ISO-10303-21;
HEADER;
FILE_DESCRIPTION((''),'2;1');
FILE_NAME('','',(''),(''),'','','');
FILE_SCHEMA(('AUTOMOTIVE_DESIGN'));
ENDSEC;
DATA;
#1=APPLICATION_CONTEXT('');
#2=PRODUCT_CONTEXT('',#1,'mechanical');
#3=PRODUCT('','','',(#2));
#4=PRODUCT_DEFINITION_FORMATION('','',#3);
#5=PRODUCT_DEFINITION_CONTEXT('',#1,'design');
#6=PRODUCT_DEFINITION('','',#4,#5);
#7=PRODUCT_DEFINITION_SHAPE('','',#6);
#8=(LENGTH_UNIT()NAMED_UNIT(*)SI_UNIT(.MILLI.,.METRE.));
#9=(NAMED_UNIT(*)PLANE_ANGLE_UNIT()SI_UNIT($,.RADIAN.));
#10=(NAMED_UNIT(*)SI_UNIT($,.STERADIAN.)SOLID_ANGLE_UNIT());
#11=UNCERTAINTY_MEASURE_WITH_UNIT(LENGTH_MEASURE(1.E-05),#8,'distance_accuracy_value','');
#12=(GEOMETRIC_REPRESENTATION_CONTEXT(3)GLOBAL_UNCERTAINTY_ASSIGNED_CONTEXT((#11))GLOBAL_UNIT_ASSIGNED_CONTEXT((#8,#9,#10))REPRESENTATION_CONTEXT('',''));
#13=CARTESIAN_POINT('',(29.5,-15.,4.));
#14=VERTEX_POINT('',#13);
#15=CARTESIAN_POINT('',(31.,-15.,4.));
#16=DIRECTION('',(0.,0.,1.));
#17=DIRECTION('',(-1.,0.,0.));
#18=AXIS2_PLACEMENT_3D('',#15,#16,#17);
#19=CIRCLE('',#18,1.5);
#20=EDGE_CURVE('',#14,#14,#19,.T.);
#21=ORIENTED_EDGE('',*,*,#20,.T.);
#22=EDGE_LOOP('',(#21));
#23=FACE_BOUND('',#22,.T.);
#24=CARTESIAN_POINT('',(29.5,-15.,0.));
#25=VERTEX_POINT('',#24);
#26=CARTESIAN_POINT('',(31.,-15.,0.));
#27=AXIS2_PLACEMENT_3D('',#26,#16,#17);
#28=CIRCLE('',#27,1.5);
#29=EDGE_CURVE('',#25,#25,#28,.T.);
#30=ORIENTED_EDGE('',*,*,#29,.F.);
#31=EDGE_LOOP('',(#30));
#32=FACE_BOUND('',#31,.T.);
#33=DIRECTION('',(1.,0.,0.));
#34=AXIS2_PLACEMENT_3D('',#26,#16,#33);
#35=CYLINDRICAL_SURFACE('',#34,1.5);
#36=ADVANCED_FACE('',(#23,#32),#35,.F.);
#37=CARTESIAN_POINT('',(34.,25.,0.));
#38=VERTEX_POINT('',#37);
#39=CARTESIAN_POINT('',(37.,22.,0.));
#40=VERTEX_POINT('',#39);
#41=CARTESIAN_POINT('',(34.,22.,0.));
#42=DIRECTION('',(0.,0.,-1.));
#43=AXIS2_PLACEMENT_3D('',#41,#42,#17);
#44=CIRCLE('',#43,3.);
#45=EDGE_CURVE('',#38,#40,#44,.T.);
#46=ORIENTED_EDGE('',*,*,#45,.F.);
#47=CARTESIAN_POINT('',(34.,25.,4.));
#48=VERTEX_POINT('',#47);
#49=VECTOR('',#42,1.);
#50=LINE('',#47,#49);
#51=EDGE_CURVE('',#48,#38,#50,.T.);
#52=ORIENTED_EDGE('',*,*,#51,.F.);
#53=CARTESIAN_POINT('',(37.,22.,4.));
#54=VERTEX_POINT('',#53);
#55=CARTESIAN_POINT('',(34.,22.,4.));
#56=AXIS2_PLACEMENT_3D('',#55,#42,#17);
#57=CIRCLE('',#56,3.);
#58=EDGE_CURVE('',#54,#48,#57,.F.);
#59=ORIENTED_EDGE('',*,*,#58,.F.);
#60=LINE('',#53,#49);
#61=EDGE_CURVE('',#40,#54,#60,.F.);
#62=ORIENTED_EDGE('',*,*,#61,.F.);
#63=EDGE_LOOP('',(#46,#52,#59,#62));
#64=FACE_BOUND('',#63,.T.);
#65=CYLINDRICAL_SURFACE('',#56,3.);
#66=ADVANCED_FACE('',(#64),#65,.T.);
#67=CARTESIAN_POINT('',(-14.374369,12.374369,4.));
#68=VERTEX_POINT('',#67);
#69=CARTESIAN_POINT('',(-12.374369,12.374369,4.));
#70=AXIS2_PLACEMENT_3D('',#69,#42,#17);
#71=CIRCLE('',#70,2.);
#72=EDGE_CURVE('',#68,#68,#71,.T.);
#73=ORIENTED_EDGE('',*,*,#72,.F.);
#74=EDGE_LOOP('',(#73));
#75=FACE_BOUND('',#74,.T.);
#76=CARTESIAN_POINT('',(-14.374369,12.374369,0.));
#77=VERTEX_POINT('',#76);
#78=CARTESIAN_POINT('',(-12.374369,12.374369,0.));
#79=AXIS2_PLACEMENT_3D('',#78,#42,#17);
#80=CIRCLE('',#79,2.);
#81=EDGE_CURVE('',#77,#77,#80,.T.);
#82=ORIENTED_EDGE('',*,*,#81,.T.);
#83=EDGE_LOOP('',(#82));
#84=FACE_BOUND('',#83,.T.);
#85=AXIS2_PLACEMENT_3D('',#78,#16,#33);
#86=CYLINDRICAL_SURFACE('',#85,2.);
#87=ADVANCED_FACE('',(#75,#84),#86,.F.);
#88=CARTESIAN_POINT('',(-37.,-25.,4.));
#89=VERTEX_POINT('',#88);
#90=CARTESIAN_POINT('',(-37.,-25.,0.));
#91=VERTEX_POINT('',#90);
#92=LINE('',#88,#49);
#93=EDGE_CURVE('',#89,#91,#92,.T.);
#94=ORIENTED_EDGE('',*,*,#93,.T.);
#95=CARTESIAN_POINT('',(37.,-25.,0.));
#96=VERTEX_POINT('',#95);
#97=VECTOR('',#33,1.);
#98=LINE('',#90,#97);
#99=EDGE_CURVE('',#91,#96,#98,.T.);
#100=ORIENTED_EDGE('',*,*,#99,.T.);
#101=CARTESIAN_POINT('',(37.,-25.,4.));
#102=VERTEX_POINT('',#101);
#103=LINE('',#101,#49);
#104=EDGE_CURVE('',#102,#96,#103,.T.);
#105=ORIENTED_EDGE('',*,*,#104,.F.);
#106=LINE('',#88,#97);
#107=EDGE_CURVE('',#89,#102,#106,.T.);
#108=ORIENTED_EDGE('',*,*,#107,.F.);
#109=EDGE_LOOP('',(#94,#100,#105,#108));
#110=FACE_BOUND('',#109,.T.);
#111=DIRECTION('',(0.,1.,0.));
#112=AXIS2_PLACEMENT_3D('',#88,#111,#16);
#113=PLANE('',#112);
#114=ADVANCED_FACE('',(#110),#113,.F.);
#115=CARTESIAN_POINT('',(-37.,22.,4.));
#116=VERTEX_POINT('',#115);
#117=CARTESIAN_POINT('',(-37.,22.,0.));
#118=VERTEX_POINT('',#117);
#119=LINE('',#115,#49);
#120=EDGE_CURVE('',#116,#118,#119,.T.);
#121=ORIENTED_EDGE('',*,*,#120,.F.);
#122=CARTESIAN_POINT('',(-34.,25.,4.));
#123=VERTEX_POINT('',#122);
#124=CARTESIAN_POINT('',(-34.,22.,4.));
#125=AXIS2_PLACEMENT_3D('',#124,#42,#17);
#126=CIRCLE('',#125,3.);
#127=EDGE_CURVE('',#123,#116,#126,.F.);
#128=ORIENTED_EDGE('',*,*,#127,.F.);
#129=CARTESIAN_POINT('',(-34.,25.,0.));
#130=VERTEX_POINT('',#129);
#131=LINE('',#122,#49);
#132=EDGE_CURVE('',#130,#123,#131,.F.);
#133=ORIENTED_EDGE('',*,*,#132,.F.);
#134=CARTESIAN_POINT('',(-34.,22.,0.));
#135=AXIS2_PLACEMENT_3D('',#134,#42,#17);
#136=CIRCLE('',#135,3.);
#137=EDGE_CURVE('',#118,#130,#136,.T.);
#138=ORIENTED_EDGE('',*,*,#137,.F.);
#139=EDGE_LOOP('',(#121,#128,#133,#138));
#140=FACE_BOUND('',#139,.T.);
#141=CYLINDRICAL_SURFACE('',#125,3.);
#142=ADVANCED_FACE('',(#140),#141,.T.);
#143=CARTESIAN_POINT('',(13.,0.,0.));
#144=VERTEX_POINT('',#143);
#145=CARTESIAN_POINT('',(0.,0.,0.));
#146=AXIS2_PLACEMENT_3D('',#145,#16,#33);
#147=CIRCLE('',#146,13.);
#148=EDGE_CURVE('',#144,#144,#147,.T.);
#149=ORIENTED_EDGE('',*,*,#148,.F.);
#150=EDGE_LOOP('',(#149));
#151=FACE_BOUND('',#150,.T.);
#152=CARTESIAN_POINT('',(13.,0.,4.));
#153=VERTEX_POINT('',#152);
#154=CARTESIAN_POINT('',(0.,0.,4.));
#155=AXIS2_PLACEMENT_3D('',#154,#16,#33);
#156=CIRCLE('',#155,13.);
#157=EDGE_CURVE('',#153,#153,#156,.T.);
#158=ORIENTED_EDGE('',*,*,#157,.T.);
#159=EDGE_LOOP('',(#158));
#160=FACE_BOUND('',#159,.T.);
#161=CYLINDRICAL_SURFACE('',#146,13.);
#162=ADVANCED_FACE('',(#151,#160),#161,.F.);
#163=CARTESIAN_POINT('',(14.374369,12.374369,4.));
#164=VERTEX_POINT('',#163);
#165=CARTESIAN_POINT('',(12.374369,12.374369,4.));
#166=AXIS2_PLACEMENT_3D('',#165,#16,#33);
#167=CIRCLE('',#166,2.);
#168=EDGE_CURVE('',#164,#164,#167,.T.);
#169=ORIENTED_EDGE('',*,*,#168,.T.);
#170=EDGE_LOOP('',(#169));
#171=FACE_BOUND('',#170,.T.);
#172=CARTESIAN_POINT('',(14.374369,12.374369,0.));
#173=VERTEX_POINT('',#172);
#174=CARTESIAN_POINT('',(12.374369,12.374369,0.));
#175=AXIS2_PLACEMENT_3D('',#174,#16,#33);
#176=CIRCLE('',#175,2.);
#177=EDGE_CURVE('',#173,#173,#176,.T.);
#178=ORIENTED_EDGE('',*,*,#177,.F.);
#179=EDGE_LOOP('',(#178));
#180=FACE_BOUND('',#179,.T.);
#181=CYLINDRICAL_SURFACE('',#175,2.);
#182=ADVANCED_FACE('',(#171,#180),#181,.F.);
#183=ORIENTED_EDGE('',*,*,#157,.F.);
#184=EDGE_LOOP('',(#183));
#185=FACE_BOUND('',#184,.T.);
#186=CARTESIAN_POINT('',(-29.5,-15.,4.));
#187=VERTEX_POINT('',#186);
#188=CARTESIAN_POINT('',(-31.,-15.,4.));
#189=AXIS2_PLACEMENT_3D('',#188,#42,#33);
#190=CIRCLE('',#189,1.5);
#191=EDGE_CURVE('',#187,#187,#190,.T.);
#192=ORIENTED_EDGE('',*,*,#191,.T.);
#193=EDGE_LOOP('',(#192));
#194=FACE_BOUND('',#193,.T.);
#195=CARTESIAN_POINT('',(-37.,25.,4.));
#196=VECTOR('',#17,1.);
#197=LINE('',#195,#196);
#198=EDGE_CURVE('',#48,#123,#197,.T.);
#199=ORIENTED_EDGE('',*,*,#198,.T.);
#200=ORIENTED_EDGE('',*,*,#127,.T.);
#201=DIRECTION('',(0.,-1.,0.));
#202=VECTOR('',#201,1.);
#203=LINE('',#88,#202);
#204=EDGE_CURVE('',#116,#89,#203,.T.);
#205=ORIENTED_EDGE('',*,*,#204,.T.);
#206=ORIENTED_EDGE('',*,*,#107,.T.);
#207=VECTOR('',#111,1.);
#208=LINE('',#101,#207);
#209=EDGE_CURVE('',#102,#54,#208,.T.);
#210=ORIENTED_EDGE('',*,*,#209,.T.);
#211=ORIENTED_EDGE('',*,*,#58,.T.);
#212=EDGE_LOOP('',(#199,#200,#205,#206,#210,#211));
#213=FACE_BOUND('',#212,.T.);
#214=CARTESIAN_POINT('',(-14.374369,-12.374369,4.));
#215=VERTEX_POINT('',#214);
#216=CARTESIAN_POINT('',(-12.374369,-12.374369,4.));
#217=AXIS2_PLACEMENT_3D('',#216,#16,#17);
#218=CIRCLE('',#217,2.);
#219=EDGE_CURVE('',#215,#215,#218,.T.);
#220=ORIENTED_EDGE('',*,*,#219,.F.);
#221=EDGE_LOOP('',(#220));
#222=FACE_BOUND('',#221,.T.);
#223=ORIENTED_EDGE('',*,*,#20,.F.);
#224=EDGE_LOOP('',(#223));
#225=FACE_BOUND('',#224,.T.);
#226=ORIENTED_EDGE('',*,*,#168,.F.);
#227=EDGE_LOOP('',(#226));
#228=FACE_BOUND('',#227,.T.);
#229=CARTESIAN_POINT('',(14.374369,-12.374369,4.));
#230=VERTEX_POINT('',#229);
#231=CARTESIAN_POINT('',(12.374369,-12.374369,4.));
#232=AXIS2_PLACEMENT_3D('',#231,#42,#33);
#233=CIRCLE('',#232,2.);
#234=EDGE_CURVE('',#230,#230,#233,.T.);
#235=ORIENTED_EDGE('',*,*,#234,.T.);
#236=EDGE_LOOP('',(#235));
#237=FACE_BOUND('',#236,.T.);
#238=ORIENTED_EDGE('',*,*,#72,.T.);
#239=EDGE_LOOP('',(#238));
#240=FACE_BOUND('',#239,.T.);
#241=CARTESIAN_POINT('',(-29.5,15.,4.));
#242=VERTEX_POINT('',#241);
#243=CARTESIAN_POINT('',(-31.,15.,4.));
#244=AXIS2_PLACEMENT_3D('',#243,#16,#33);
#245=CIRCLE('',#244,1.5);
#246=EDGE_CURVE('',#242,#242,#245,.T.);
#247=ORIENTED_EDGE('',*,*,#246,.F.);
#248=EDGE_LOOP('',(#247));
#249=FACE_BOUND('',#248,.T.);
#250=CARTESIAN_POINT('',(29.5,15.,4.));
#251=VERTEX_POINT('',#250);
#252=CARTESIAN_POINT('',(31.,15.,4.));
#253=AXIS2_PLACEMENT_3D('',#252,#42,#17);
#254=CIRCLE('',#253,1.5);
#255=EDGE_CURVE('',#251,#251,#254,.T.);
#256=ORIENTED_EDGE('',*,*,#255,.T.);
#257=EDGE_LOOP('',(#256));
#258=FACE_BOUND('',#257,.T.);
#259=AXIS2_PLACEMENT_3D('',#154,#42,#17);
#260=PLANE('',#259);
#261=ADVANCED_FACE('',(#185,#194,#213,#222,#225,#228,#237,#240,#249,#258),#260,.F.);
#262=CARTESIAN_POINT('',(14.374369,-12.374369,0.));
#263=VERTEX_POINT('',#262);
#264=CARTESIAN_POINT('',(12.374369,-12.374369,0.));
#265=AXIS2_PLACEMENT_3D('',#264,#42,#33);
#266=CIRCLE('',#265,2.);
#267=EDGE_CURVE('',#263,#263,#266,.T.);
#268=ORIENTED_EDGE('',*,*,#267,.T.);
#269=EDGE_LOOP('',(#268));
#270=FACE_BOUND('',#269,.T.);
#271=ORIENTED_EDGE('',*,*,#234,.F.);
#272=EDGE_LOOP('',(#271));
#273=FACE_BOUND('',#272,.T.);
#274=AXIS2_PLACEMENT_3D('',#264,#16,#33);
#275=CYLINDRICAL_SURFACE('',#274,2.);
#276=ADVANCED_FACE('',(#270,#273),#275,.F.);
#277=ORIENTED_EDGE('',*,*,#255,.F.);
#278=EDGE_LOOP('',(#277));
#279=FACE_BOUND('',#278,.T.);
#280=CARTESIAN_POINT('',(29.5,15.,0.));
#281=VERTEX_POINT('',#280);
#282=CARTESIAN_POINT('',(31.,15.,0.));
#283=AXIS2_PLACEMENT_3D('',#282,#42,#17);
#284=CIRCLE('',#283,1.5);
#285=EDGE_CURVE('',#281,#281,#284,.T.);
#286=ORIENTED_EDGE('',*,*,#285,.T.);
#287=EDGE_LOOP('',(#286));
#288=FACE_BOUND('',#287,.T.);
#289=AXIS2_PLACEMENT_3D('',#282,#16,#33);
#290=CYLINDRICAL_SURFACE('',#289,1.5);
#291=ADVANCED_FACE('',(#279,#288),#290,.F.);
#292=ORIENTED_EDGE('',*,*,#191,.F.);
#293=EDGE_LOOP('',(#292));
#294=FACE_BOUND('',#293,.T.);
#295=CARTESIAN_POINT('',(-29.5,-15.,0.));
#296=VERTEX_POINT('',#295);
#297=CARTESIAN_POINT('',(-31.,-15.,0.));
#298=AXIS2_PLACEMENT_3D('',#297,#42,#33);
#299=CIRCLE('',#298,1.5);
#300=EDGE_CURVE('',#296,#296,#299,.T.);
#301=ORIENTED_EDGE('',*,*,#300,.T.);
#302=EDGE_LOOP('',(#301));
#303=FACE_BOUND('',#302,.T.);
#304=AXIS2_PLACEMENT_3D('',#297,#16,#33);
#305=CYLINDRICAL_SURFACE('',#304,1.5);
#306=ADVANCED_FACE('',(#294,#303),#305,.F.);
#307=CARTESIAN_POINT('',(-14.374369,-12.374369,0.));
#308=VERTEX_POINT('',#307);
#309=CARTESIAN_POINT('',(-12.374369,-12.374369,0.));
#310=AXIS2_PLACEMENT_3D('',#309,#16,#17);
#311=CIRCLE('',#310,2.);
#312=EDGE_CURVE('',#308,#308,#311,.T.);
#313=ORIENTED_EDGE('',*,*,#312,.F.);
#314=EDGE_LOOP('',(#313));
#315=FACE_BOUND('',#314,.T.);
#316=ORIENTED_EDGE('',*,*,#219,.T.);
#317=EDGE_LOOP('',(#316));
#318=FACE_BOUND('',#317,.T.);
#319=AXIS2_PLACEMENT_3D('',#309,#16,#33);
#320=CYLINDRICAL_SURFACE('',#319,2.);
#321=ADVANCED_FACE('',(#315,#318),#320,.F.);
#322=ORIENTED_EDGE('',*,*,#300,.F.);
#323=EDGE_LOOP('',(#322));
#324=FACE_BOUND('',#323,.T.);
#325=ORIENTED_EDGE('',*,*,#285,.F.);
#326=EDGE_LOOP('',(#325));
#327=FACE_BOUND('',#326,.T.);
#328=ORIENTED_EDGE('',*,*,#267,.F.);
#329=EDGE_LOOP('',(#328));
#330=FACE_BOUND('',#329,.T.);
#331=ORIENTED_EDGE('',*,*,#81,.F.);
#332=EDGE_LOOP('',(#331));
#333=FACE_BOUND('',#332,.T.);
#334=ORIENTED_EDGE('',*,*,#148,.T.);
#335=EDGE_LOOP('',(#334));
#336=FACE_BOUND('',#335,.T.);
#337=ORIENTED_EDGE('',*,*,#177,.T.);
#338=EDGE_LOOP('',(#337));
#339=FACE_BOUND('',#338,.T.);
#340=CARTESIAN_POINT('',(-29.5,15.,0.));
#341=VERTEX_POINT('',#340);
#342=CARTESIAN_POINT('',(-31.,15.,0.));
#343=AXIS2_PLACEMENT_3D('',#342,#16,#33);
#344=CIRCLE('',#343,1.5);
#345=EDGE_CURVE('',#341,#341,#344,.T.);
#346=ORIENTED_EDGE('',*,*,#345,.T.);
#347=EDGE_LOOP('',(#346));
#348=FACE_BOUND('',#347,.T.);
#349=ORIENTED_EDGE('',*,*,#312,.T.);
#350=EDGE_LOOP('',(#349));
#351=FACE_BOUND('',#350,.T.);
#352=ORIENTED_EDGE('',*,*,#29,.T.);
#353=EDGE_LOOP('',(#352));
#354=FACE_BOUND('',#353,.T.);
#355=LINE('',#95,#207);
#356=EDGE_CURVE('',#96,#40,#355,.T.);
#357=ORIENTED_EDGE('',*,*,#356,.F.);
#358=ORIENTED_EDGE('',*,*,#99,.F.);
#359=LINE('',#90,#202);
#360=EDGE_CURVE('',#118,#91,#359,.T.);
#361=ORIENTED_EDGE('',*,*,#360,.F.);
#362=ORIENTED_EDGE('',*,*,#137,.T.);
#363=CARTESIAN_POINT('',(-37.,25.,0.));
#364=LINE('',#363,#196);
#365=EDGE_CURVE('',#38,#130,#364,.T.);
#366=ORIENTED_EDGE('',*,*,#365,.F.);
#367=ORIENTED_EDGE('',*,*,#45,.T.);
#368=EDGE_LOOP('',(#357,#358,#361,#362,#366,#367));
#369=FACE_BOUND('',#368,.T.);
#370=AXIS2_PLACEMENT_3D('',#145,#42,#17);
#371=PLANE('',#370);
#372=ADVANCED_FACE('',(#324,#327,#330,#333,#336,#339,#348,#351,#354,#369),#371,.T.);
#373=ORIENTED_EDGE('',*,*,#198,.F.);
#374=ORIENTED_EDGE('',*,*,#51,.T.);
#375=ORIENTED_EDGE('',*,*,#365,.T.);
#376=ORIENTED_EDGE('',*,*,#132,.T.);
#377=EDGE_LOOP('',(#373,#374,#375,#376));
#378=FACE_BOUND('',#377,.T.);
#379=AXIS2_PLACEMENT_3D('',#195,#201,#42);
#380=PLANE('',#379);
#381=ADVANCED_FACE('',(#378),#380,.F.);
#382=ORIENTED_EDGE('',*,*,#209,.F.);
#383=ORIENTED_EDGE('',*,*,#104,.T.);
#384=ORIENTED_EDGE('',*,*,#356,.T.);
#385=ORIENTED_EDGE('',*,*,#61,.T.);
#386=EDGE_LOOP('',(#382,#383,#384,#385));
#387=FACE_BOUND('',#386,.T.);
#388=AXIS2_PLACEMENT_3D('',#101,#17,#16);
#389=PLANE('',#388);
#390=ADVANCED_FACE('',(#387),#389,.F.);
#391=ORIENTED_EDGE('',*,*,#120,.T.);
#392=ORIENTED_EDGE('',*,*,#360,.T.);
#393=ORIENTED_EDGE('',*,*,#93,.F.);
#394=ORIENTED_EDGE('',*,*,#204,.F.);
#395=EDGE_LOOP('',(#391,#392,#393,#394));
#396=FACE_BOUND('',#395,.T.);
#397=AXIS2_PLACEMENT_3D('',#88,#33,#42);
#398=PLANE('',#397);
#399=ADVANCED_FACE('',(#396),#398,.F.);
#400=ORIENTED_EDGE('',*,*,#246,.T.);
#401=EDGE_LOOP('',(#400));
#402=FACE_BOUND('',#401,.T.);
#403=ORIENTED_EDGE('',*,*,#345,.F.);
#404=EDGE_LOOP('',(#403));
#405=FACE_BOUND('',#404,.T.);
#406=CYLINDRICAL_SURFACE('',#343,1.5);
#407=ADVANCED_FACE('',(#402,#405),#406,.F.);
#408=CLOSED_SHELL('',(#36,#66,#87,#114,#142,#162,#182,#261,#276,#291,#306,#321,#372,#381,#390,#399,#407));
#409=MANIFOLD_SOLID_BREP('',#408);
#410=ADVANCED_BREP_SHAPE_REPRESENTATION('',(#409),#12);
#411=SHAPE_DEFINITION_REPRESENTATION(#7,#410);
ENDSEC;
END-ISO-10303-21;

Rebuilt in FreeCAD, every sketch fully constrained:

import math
import FreeCAD as App
import Part
import Sketcher

V = App.Vector
Q = App.Units.Quantity


def edges_at(feature, points):
    """Names of the edges that pass closest to the given points."""
    edges = feature.Shape.Edges
    near = lambda p: min(range(len(edges)), key=lambda i: edges[i].distToShape(Part.Vertex(*p))[0])
    return sorted({f"Edge{near(p) + 1}" for p in points})

doc = App.newDocument("Part")
body = doc.addObject("PartDesign::Body", "Body")

# Sketch on XY plane
sketch1 = body.newObject("Sketcher::SketchObject", "Sketch")
sketch1.AttachmentSupport = (doc.getObject("XY_Plane"), [""])
sketch1.MapMode = "FlatFace"
sketch1.addGeometry([
    Part.LineSegment(V(-37, 25, 0), V(-37, -25, 0)),
    Part.LineSegment(V(-37, -25, 0), V(37, -25, 0)),
    Part.LineSegment(V(37, -25, 0), V(37, 25, 0)),
    Part.LineSegment(V(37, 25, 0), V(-37, 25, 0)),
], False)
sketch1.addConstraint([
    Sketcher.Constraint("Coincident", 0, 2, 1, 1),
    Sketcher.Constraint("Coincident", 1, 2, 2, 1),
    Sketcher.Constraint("Coincident", 2, 2, 3, 1),
    Sketcher.Constraint("Coincident", 3, 2, 0, 1),
    Sketcher.Constraint("Vertical", 0),
    Sketcher.Constraint("Horizontal", 1),
    Sketcher.Constraint("Vertical", 2),
    Sketcher.Constraint("Horizontal", 3),
    Sketcher.Constraint("Symmetric", 0, 2, 2, 2, -1, 1),
    Sketcher.Constraint("DistanceX", 1, 1, 1, 2, Q("74 mm")),
    Sketcher.Constraint("DistanceY", 0, 2, 0, 1, Q("50 mm")),
])
pad1 = body.newObject("PartDesign::Pad", "Pad")
pad1.Profile = sketch1
pad1.Length = 4

# Sketch on XY plane
sketch2 = body.newObject("Sketcher::SketchObject", "Sketch001")
sketch2.AttachmentSupport = (doc.getObject("XY_Plane"), [""])
sketch2.MapMode = "FlatFace"
sketch2.AttachmentOffset = App.Placement(V(0, 0, 4), App.Rotation())
sketch2.addGeometry(Part.Circle(V(0, 0, 0), V(0, 0, 1), 13), False)
sketch2.addConstraint([
    Sketcher.Constraint("Coincident", 0, 3, -1, 1),
    Sketcher.Constraint("Diameter", 0, Q("26 mm")),
])
pocket1 = body.newObject("PartDesign::Pocket", "Pocket")
pocket1.Profile = sketch2
pocket1.Type = "ThroughAll"

# Sketch on XY plane
sketch3 = body.newObject("Sketcher::SketchObject", "Sketch002")
sketch3.AttachmentSupport = (doc.getObject("XY_Plane"), [""])
sketch3.MapMode = "FlatFace"
sketch3.AttachmentOffset = App.Placement(V(0, 0, 4), App.Rotation())
sketch3.addGeometry([
    Part.ArcOfCircle(Part.Circle(V(12.4, 12.4, 0), V(0, 0, 1), 2), math.radians(180), math.radians(270)),
    Part.ArcOfCircle(Part.Circle(V(12.4, 12.4, 0), V(0, 0, 1), 2), math.radians(-90), math.radians(0)),
    Part.ArcOfCircle(Part.Circle(V(12.4, 12.4, 0), V(0, 0, 1), 2), math.radians(0), math.radians(180)),
], False)
sketch3.addConstraint([
    Sketcher.Constraint("Tangent", 0, 2, 1, 1),
    Sketcher.Constraint("Tangent", 1, 2, 2, 1),
    Sketcher.Constraint("Tangent", 2, 2, 0, 1),
    Sketcher.Constraint("Horizontal", 2, 3, 1, 2),
    Sketcher.Constraint("Horizontal", 1, 2, 2, 2),
    Sketcher.Constraint("Vertical", 2, 3, 0, 2),
    Sketcher.Constraint("Radius", 0, Q("2 mm")),
    Sketcher.Constraint("DistanceX", -1, 1, 0, 3, Q("12.374369 mm")),
    Sketcher.Constraint("DistanceY", -1, 1, 0, 3, Q("12.374369 mm")),
])
pocket2 = body.newObject("PartDesign::Pocket", "Pocket001")
pocket2.Profile = sketch3
pocket2.Type = "ThroughAll"
doc.recompute()

mirrored = body.newObject("PartDesign::Mirrored", "Mirrored")
mirrored.Originals = [pocket2]
mirrored.MirrorPlane = (doc.getObject("YZ_Plane"), [""])
body.Tip = mirrored
doc.recompute()

mirrored2 = body.newObject("PartDesign::Mirrored", "Mirrored001")
mirrored2.Originals = [pocket2]
mirrored2.MirrorPlane = (doc.getObject("XZ_Plane"), [""])
body.Tip = mirrored2

# Sketch on XY plane
sketch4 = body.newObject("Sketcher::SketchObject", "Sketch003")
sketch4.AttachmentSupport = (doc.getObject("XY_Plane"), [""])
sketch4.MapMode = "FlatFace"
sketch4.AttachmentOffset = App.Placement(V(0, 0, 4), App.Rotation())
sketch4.addGeometry([
    Part.ArcOfCircle(Part.Circle(V(-12.4, -12.4, 0), V(0, 0, 1), 2), math.radians(0), math.radians(90)),
    Part.ArcOfCircle(Part.Circle(V(-12.4, -12.4, 0), V(0, 0, 1), 2), math.radians(90), math.radians(180)),
    Part.ArcOfCircle(Part.Circle(V(-12.4, -12.4, 0), V(0, 0, 1), 2), math.radians(180), math.radians(360)),
], False)
sketch4.addConstraint([
    Sketcher.Constraint("Tangent", 0, 2, 1, 1),
    Sketcher.Constraint("Tangent", 1, 2, 2, 1),
    Sketcher.Constraint("Tangent", 2, 2, 0, 1),
    Sketcher.Constraint("Horizontal", 2, 3, 1, 2),
    Sketcher.Constraint("Horizontal", 1, 2, 2, 2),
    Sketcher.Constraint("Vertical", 2, 3, 0, 2),
    Sketcher.Constraint("Radius", 0, Q("2 mm")),
    Sketcher.Constraint("DistanceX", 0, 3, -1, 1, Q("12.374369 mm")),
    Sketcher.Constraint("DistanceY", 0, 3, -1, 1, Q("12.374369 mm")),
])
pocket3 = body.newObject("PartDesign::Pocket", "Pocket002")
pocket3.Profile = sketch4
pocket3.Type = "ThroughAll"

# Sketch on XY plane
sketch5 = body.newObject("Sketcher::SketchObject", "Sketch004")
sketch5.AttachmentSupport = (doc.getObject("XY_Plane"), [""])
sketch5.MapMode = "FlatFace"
sketch5.AttachmentOffset = App.Placement(V(0, 0, 4), App.Rotation())
sketch5.addGeometry([
    Part.ArcOfCircle(Part.Circle(V(-31, 15, 0), V(0, 0, 1), 1.5), math.radians(0), math.radians(270)),
    Part.ArcOfCircle(Part.Circle(V(-31, 15, 0), V(0, 0, 1), 1.5), math.radians(-90), math.radians(0)),
], False)
sketch5.addConstraint([
    Sketcher.Constraint("Tangent", 0, 1, 1, 2),
    Sketcher.Constraint("Coincident", 1, 1, 0, 2),
    Sketcher.Constraint("Horizontal", 1, 3, 0, 1),
    Sketcher.Constraint("Vertical", 0, 3, 1, 1),
    Sketcher.Constraint("Radius", 0, Q("1.5 mm")),
    Sketcher.Constraint("DistanceX", 0, 3, -1, 1, Q("31 mm")),
    Sketcher.Constraint("DistanceY", -1, 1, 0, 3, Q("15 mm")),
])
pocket4 = body.newObject("PartDesign::Pocket", "Pocket003")
pocket4.Profile = sketch5
pocket4.Type = "ThroughAll"
doc.recompute()

mirrored3 = body.newObject("PartDesign::Mirrored", "Mirrored002")
mirrored3.Originals = [pocket4]
mirrored3.MirrorPlane = (doc.getObject("YZ_Plane"), [""])
body.Tip = mirrored3
doc.recompute()

mirrored4 = body.newObject("PartDesign::Mirrored", "Mirrored003")
mirrored4.Originals = [pocket4]
mirrored4.MirrorPlane = (doc.getObject("XZ_Plane"), [""])
body.Tip = mirrored4

# Sketch on XY plane
sketch6 = body.newObject("Sketcher::SketchObject", "Sketch005")
sketch6.AttachmentSupport = (doc.getObject("XY_Plane"), [""])
sketch6.MapMode = "FlatFace"
sketch6.AttachmentOffset = App.Placement(V(0, 0, 4), App.Rotation())
sketch6.addGeometry([
    Part.ArcOfCircle(Part.Circle(V(31, -15, 0), V(0, 0, 1), 1.5), math.radians(180), math.radians(450)),
    Part.ArcOfCircle(Part.Circle(V(31, -15, 0), V(0, 0, 1), 1.5), math.radians(90), math.radians(180)),
], False)
sketch6.addConstraint([
    Sketcher.Constraint("Tangent", 0, 1, 1, 2),
    Sketcher.Constraint("Coincident", 1, 1, 0, 2),
    Sketcher.Constraint("Horizontal", 1, 3, 0, 1),
    Sketcher.Constraint("Vertical", 0, 3, 1, 1),
    Sketcher.Constraint("Radius", 0, Q("1.5 mm")),
    Sketcher.Constraint("DistanceX", -1, 1, 0, 3, Q("31 mm")),
    Sketcher.Constraint("DistanceY", 0, 3, -1, 1, Q("15 mm")),
])
pocket5 = body.newObject("PartDesign::Pocket", "Pocket004")
pocket5.Profile = sketch6
pocket5.Type = "ThroughAll"
doc.recompute()

fillet = body.newObject("PartDesign::Fillet", "Fillet")
fillet.Base = (pocket5, edges_at(pocket5, [(-37, 25, 2), (37, 25, 2)]))
fillet.Radius = 3

doc.recompute()
